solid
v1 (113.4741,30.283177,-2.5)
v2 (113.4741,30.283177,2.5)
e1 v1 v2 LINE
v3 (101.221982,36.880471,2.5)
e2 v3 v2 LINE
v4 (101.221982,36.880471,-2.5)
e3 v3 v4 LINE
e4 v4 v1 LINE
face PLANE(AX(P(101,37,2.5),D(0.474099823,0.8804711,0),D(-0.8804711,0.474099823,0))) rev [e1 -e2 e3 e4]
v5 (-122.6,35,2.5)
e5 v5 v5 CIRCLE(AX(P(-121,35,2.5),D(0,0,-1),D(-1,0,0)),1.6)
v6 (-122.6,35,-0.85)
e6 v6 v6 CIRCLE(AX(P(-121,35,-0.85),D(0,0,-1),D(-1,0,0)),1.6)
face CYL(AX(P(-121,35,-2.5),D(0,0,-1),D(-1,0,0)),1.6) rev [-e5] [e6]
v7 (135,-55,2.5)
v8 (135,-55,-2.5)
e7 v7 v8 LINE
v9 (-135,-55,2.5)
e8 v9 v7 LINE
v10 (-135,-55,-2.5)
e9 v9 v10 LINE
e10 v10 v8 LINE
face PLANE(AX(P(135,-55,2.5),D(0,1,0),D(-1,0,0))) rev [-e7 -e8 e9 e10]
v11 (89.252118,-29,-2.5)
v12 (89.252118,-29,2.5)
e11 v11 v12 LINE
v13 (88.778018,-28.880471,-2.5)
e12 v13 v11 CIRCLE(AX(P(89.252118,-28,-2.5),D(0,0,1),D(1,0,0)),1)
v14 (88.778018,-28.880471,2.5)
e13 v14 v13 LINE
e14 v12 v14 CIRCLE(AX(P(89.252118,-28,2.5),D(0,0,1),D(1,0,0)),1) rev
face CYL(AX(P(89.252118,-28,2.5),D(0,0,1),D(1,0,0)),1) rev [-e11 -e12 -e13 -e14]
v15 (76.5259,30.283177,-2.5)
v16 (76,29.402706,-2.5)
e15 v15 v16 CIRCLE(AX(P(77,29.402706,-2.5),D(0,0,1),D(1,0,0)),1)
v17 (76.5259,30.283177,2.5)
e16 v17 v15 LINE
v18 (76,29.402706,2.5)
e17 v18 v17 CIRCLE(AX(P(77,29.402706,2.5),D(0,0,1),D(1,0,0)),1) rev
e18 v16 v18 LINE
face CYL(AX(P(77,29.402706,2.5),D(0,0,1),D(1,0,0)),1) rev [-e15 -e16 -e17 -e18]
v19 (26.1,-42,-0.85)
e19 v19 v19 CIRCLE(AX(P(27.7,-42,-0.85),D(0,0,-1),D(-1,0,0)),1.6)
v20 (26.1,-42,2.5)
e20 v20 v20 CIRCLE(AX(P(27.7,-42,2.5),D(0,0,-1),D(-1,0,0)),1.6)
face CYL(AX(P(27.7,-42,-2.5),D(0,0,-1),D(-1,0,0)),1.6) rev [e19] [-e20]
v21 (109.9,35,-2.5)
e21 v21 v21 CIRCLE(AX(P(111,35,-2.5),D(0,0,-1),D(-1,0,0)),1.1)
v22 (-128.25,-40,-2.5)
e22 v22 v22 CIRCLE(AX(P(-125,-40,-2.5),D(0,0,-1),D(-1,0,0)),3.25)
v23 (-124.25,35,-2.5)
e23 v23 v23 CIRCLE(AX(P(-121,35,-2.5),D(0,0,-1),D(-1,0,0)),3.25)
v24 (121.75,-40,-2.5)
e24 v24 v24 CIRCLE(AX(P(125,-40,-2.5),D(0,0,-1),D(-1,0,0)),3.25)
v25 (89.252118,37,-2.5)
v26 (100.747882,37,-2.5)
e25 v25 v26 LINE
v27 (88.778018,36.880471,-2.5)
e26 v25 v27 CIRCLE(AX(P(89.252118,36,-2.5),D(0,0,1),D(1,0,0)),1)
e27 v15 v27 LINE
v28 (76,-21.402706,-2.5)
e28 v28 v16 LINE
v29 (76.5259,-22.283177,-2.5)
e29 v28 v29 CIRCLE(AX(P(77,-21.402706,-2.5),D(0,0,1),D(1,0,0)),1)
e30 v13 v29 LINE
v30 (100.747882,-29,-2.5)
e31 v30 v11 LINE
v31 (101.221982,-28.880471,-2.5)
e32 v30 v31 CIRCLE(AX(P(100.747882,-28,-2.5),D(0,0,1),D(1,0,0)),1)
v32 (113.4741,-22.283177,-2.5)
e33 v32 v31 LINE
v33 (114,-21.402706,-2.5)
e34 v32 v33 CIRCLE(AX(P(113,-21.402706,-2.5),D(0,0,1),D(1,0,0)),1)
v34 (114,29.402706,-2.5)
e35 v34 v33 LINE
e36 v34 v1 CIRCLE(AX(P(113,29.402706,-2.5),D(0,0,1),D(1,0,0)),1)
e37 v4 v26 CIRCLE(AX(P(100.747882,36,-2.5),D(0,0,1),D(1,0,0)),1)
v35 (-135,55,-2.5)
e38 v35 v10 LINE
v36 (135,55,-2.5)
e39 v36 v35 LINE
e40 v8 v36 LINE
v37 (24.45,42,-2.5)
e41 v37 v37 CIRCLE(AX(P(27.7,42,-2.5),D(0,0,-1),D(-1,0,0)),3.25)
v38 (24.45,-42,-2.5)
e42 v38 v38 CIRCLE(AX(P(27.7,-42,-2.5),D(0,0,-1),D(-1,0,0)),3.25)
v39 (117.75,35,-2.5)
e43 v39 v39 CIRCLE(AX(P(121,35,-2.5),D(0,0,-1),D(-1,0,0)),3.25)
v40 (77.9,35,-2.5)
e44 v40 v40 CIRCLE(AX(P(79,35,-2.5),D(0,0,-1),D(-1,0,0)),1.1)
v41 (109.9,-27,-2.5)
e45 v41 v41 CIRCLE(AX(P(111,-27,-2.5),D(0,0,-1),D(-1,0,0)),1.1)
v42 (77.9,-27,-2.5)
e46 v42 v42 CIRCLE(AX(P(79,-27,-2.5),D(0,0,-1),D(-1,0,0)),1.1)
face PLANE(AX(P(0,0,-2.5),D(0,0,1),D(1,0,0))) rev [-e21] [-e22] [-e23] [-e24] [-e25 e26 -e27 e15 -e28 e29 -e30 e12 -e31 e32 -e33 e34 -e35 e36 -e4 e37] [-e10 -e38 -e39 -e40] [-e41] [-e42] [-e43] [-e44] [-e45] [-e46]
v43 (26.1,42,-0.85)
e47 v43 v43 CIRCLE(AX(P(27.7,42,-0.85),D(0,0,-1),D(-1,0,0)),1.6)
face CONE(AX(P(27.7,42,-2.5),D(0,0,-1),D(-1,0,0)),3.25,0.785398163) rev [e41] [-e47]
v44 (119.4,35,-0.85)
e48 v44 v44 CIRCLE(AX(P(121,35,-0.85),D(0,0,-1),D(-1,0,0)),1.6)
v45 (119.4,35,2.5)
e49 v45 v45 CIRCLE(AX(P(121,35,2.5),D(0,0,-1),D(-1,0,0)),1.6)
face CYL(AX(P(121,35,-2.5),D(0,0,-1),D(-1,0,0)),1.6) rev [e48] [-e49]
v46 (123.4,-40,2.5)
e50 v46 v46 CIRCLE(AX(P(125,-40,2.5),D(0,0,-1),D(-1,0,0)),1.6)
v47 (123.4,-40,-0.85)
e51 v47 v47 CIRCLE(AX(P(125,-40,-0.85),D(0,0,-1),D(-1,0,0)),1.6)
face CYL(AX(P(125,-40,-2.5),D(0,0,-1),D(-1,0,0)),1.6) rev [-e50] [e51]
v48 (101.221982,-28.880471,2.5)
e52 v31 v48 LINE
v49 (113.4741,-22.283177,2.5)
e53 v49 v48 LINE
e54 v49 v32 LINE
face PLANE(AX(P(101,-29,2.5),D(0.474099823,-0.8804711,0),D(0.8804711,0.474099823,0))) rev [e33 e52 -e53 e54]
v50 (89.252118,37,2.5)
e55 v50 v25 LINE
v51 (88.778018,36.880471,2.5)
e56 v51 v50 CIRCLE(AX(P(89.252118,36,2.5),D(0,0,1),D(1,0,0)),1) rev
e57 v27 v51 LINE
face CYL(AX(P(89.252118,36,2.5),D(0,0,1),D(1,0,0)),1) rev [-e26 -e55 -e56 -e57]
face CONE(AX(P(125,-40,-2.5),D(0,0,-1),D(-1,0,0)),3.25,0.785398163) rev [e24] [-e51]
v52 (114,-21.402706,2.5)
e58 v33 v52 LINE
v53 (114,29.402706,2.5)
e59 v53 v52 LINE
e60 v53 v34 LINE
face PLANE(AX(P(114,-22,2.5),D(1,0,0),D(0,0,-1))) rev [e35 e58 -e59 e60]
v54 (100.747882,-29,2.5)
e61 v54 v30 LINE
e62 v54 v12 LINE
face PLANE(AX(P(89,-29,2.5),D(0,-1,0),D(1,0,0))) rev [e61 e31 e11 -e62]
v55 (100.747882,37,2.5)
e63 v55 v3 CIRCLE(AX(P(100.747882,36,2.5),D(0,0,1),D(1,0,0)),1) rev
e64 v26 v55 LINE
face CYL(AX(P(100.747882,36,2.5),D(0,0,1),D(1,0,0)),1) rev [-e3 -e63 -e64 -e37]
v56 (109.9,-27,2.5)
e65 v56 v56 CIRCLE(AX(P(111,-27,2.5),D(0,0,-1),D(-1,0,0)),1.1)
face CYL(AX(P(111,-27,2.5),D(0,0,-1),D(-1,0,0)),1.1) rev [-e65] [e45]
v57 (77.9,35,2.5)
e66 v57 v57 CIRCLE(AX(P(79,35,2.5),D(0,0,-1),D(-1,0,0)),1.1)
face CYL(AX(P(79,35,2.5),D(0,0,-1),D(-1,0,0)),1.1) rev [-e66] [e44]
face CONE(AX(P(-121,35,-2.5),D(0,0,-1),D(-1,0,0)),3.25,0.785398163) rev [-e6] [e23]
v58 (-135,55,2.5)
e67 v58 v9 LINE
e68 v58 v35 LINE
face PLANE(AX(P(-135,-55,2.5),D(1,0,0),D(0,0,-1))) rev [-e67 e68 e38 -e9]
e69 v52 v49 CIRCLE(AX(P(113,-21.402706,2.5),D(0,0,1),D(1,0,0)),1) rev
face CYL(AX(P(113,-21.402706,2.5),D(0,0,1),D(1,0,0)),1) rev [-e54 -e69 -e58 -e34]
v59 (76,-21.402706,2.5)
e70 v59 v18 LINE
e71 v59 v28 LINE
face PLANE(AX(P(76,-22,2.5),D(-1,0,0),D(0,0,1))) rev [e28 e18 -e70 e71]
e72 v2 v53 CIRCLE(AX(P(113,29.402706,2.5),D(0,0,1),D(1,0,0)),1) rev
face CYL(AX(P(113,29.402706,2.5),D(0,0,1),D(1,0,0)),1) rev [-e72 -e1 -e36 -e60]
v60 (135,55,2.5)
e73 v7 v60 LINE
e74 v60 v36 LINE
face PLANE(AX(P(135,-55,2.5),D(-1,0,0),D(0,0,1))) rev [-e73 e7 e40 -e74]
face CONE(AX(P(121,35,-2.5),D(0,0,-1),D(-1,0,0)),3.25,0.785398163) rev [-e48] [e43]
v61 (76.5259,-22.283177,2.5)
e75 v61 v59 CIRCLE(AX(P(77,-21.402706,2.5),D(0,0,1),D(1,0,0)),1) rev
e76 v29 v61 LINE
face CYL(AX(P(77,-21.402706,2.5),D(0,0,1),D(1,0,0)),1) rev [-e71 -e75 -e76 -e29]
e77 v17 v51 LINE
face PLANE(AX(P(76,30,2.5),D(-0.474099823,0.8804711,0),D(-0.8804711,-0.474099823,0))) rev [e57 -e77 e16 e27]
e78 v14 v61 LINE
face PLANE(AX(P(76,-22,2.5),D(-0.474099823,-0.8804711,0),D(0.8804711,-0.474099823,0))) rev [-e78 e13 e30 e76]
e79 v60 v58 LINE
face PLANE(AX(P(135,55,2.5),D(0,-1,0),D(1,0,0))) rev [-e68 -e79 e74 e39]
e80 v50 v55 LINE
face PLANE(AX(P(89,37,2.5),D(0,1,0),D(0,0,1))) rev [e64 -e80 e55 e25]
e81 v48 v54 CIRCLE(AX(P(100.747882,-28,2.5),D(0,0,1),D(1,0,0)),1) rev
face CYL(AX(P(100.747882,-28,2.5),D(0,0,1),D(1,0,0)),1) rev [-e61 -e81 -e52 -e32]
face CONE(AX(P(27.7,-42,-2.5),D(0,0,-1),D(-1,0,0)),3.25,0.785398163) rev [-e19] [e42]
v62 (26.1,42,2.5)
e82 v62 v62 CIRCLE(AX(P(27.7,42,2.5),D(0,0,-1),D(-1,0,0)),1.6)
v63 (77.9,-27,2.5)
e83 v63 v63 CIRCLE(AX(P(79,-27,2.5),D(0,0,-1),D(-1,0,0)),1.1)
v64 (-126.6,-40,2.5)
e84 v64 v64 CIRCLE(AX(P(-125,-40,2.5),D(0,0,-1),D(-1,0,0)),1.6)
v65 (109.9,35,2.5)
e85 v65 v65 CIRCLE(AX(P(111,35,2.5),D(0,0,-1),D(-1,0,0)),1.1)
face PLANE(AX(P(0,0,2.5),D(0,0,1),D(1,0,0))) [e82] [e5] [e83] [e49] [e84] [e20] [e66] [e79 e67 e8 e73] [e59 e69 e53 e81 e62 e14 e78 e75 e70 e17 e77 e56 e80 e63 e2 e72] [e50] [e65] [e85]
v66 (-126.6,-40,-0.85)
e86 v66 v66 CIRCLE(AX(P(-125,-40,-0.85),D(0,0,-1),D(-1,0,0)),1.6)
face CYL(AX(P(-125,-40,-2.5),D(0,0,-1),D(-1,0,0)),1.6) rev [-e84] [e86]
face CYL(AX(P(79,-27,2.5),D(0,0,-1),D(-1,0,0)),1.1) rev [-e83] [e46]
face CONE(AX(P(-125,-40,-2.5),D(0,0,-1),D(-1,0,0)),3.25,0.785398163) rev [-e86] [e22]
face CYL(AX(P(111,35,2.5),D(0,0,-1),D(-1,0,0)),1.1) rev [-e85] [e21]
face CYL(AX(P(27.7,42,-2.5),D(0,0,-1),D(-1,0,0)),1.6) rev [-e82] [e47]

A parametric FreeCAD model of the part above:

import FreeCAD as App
import Part
import Sketcher
Q = App.Units.Quantity


def edges_at(feature, points):
    """Names of the edges that pass closest to the given points."""
    edges = feature.Shape.Edges
    near = lambda p: min(range(len(edges)), key=lambda i: edges[i].distToShape(Part.Vertex(*p))[0])
    return sorted({f"Edge{near(p) + 1}" for p in points})


def add_polygon(sketch, points):
    """Adds a closed chain of lines whose ends are joined by coincident constraints."""
    first, n = sketch.GeometryCount, len(points)
    for a, b in zip(points, points[1:] + points[:1]):
        sketch.addGeometry(Part.LineSegment(App.Vector(*a, 0), App.Vector(*b, 0)), False)
    for i in range(n):
        sketch.addConstraint(Sketcher.Constraint("Coincident", first + i, 2, first + (i + 1) % n, 1))

doc = App.newDocument("Part")
body = doc.addObject("PartDesign::Body", "Body")

# Sketch on XY plane
sketch1 = body.newObject("Sketcher::SketchObject", "Sketch")
sketch1.AttachmentSupport = (doc.getObject("XY_Plane"), [""])
sketch1.MapMode = "FlatFace"
add_polygon(sketch1, [(-135, 55), (-135, -55), (135, -55), (135, 55)])  # lines 0-3
sketch1.addConstraint([
    Sketcher.Constraint("Vertical", 0),
    Sketcher.Constraint("Horizontal", 1),
    Sketcher.Constraint("Vertical", 2),
    Sketcher.Constraint("Horizontal", 3),
    Sketcher.Constraint("Symmetric", 0, 2, 2, 2, -1, 1),
    Sketcher.Constraint("DistanceX", 1, 1, 1, 2, Q("270 mm")),
    Sketcher.Constraint("DistanceY", 0, 2, 0, 1, Q("110 mm")),
])
pad1 = body.newObject("PartDesign::Pad", "Pad")
pad1.Profile = sketch1
pad1.Length = 5
pad1.Midplane = True

# Sketch on XY plane
sketch2 = body.newObject("Sketcher::SketchObject", "Sketch001")
sketch2.AttachmentSupport = (doc.getObject("XY_Plane"), [""])
sketch2.MapMode = "FlatFace"
sketch2.AttachmentOffset = App.Placement(App.Vector(0, 0, -2.5), App.Rotation())
sketch2.addGeometry(Part.Circle(App.Vector(79, 35, 0), App.Vector(0, 0, 1), 1.1), False)  # 0
sketch2.addGeometry(Part.Circle(App.Vector(111, 35, 0), App.Vector(0, 0, 1), 1.1), False)  # 1
sketch2.addGeometry(Part.Circle(App.Vector(111, -27, 0), App.Vector(0, 0, 1), 1.1), False)  # 2
sketch2.addGeometry(Part.Circle(App.Vector(79, -27, 0), App.Vector(0, 0, 1), 1.1), False)  # 3
add_polygon(sketch2, [(101, 37), (114, 30), (114, -22), (101, -29), (89, -29), (76, -22), (76, 30), (89, 37)])  # lines 4-11
sketch2.addConstraint([
    Sketcher.Constraint("Vertical", 5),
    Sketcher.Constraint("Horizontal", 7),
    Sketcher.Constraint("Vertical", 9),
    Sketcher.Constraint("Horizontal", 11),
    Sketcher.Constraint("Equal", 0, 1),
    Sketcher.Constraint("Equal", 1, 2),
    Sketcher.Constraint("Equal", 2, 3),
    Sketcher.Constraint("Parallel", 4, 8),
    Sketcher.Constraint("Parallel", 6, 10),
    Sketcher.Constraint("Horizontal", 0, 3, 1, 3),
    Sketcher.Constraint("Horizontal", 2, 3, 3, 3),
    Sketcher.Constraint("Horizontal", 5, 2, 8, 2),
    Sketcher.Constraint("Horizontal", 4, 2, 9, 2),
    Sketcher.Constraint("Vertical", 1, 3, 2, 3),
    Sketcher.Constraint("Vertical", 0, 3, 3, 3),
    Sketcher.Constraint("Vertical", 7, 2, 10, 2),
    Sketcher.Constraint("Vertical", 6, 2, 11, 2),
    Sketcher.Constraint("Diameter", 0, Q("2.2 mm")),
    Sketcher.Constraint("DistanceX", 7, 2, 7, 1, Q("12 mm")),
    Sketcher.Constraint("DistanceY", 5, 2, 5, 1, Q("52 mm")),
    Sketcher.Constraint("DistanceX", -1, 1, 0, 3, Q("79 mm")),
    Sketcher.Constraint("DistanceY", -1, 1, 0, 3, Q("35 mm")),
    Sketcher.Constraint("DistanceX", -1, 1, 1, 3, Q("111 mm")),
    Sketcher.Constraint("DistanceY", 2, 3, -1, 1, Q("27 mm")),
    Sketcher.Constraint("DistanceX", -1, 1, 4, 2, Q("114 mm")),
    Sketcher.Constraint("DistanceY", -1, 1, 4, 2, Q("30 mm")),
    Sketcher.Constraint("DistanceX", -1, 1, 6, 2, Q("101 mm")),
    Sketcher.Constraint("DistanceY", 6, 2, -1, 1, Q("29 mm")),
])
pocket1 = body.newObject("PartDesign::Pocket", "Pocket")
pocket1.Profile = sketch2
pocket1.Type = "ThroughAll"
pocket1.Reversed = True
doc.recompute()

fillet = body.newObject("PartDesign::Fillet", "Fillet")
fillet.Base = (pocket1, edges_at(pocket1, [
    (89, 37, 0),
    (76, 30, 0),
    (76, -22, 0),
    (89, -29, 0),
    (101, -29, 0),
    (114, -22, 0),
    (114, 30, 0),
    (101, 37, 0),
]))
fillet.Radius = 1

# Sketch on XY plane
sketch3 = body.newObject("Sketcher::SketchObject", "Sketch002")
sketch3.AttachmentSupport = (doc.getObject("XY_Plane"), [""])
sketch3.MapMode = "FlatFace"
sketch3.AttachmentOffset = App.Placement(App.Vector(0, 0, -2.5), App.Rotation())
sketch3.addGeometry([
    Part.Circle(App.Vector(121, 35, 0), App.Vector(0, 0, 1), 1.6),
    Part.Circle(App.Vector(125, -40, 0), App.Vector(0, 0, 1), 1.6),
    Part.Circle(App.Vector(-125, -40, 0), App.Vector(0, 0, 1), 1.6),
    Part.Circle(App.Vector(-121, 35, 0), App.Vector(0, 0, 1), 1.6),
], False)
sketch3.addConstraint([
    Sketcher.Constraint("Equal", 0, 1),
    Sketcher.Constraint("Equal", 1, 2),
    Sketcher.Constraint("Equal", 2, 3),
    Sketcher.Constraint("Symmetric", 1, 3, 2, 3, -2),
    Sketcher.Constraint("Symmetric", 0, 3, 3, 3, -2),
    Sketcher.Constraint("Diameter", 0, Q("3.2 mm")),
    Sketcher.Constraint("DistanceX", -1, 1, 0, 3, Q("121 mm")),
    Sketcher.Constraint("DistanceY", -1, 1, 0, 3, Q("35 mm")),
    Sketcher.Constraint("DistanceX", -1, 1, 1, 3, Q("125 mm")),
    Sketcher.Constraint("DistanceY", 1, 3, -1, 1, Q("40 mm")),
])
doc.recompute()
hole = body.newObject("PartDesign::Hole", "Hole")
hole.Profile = sketch3
hole.ThreadType = "None"
hole.Diameter = 3.2
hole.DepthType = "ThroughAll"
hole.HoleCutType = "Countersink"
hole.HoleCutDiameter = 6.5
hole.HoleCutCountersinkAngle = 90
hole.Reversed = True

# Sketch on XY plane
sketch4 = body.newObject("Sketcher::SketchObject", "Sketch003")
sketch4.AttachmentSupport = (doc.getObject("XY_Plane"), [""])
sketch4.MapMode = "FlatFace"
sketch4.AttachmentOffset = App.Placement(App.Vector(0, 0, -2.5), App.Rotation())
sketch4.addGeometry([
    Part.Circle(App.Vector(27.7, 42, 0), App.Vector(0, 0, 1), 1.6),
    Part.Circle(App.Vector(27.7, -42, 0), App.Vector(0, 0, 1), 1.6),
], False)
sketch4.addConstraint([
    Sketcher.Constraint("Equal", 0, 1),
    Sketcher.Constraint("Symmetric", 0, 3, 1, 3, -1),
    Sketcher.Constraint("Diameter", 0, Q("3.2 mm")),
    Sketcher.Constraint("DistanceY", -1, 1, 0, 3, Q("42 mm")),
    Sketcher.Constraint("DistanceX", -1, 1, 0, 3, Q("27.7 mm")),
])
doc.recompute()
hole2 = body.newObject("PartDesign::Hole", "Hole001")
hole2.Profile = sketch4
hole2.ThreadType = "None"
hole2.Diameter = 3.2
hole2.DepthType = "ThroughAll"
hole2.HoleCutType = "Countersink"
hole2.HoleCutDiameter = 6.5
hole2.HoleCutCountersinkAngle = 90
hole2.Reversed = True

doc.recompute()
